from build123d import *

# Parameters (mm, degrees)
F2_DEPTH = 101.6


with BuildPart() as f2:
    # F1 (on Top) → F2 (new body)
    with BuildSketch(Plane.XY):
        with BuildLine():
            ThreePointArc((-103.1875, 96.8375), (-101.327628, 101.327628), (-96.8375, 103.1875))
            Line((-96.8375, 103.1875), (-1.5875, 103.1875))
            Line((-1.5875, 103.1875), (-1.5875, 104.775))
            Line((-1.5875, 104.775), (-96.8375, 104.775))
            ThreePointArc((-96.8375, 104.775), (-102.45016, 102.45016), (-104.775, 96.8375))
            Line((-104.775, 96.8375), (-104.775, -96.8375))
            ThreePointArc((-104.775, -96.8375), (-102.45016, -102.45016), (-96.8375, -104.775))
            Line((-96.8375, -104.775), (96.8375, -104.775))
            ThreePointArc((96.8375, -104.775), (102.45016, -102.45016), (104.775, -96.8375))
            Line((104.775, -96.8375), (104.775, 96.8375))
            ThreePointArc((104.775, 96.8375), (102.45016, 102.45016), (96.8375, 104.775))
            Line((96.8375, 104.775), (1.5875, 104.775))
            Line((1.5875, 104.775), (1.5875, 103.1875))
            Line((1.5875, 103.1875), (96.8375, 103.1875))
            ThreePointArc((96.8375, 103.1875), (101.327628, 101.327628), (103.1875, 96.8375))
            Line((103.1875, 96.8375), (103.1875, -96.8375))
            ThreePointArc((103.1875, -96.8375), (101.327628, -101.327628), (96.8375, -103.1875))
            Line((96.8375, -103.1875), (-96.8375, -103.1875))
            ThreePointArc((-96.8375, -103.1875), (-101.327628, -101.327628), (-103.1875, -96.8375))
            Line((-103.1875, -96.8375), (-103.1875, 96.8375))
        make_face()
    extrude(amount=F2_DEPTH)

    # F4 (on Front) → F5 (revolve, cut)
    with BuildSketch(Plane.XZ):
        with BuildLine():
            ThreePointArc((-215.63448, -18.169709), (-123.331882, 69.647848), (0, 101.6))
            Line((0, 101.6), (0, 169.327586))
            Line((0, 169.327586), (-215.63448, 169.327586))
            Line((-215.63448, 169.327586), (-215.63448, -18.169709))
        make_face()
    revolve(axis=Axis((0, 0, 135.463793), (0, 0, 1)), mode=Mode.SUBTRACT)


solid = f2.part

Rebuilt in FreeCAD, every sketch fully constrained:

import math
import FreeCAD as App
import Part
import Sketcher
from FreeCAD import Vector
Q = App.Units.Quantity

doc = App.newDocument("Part")
body = doc.addObject("PartDesign::Body", "Body")

# Sketch on XY plane
sketch1 = doc.addObject("Sketcher::SketchObject", "Sketch")
body.addObject(sketch1)
sketch1.AttachmentSupport = (doc.XY_Plane, [""])
sketch1.MapMode = "FlatFace"
sketch1.addGeometry(Part.ArcOfCircle(Part.Circle(Vector(-96.8, 96.8, 0), Vector(0, 0, 1), 6.4), math.radians(90), math.radians(180)), False)
sketch1.addGeometry(Part.LineSegment(Vector(-96.8, 103.2, 0), Vector(-1.6, 103.2, 0)), False)
sketch1.addGeometry(Part.LineSegment(Vector(-1.6, 103.2, 0), Vector(-1.6, 104.8, 0)), False)
sketch1.addGeometry(Part.LineSegment(Vector(-1.6, 104.8, 0), Vector(-96.8, 104.8, 0)), False)
sketch1.addGeometry(Part.ArcOfCircle(Part.Circle(Vector(-96.8, 96.8, 0), Vector(0, 0, 1), 7.9), math.radians(90), math.radians(180)), False)
sketch1.addGeometry(Part.LineSegment(Vector(-104.8, 96.8, 0), Vector(-104.8, -96.8, 0)), False)
sketch1.addGeometry(Part.ArcOfCircle(Part.Circle(Vector(-96.8, -96.8, 0), Vector(0, 0, 1), 7.9), math.radians(-180), math.radians(-90)), False)
sketch1.addGeometry(Part.LineSegment(Vector(-96.8, -104.8, 0), Vector(96.8, -104.8, 0)), False)
sketch1.addGeometry(Part.ArcOfCircle(Part.Circle(Vector(96.8, -96.8, 0), Vector(0, 0, 1), 7.9), math.radians(-90), math.radians(0)), False)
sketch1.addGeometry(Part.LineSegment(Vector(104.8, -96.8, 0), Vector(104.8, 96.8, 0)), False)
sketch1.addGeometry(Part.ArcOfCircle(Part.Circle(Vector(96.8, 96.8, 0), Vector(0, 0, 1), 7.9), math.radians(0), math.radians(90)), False)
sketch1.addGeometry(Part.LineSegment(Vector(96.8, 104.8, 0), Vector(1.6, 104.8, 0)), False)
sketch1.addGeometry(Part.LineSegment(Vector(1.6, 104.8, 0), Vector(1.6, 103.2, 0)), False)
sketch1.addGeometry(Part.LineSegment(Vector(1.6, 103.2, 0), Vector(96.8, 103.2, 0)), False)
sketch1.addGeometry(Part.ArcOfCircle(Part.Circle(Vector(96.8, 96.8, 0), Vector(0, 0, 1), 6.4), math.radians(0), math.radians(90)), False)
sketch1.addGeometry(Part.LineSegment(Vector(103.2, 96.8, 0), Vector(103.2, -96.8, 0)), False)
sketch1.addGeometry(Part.ArcOfCircle(Part.Circle(Vector(96.8, -96.8, 0), Vector(0, 0, 1), 6.4), math.radians(-90), math.radians(0)), False)
sketch1.addGeometry(Part.LineSegment(Vector(96.8, -103.2, 0), Vector(-96.8, -103.2, 0)), False)
sketch1.addGeometry(Part.ArcOfCircle(Part.Circle(Vector(-96.8, -96.8, 0), Vector(0, 0, 1), 6.4), math.radians(-180), math.radians(-90)), False)
sketch1.addGeometry(Part.LineSegment(Vector(-103.2, -96.8, 0), Vector(-103.2, 96.8, 0)), False)
sketch1.addConstraint(Sketcher.Constraint("Tangent", 0, 1, 1, 1))
sketch1.addConstraint(Sketcher.Constraint("Coincident", 1, 2, 2, 1))
sketch1.addConstraint(Sketcher.Constraint("Coincident", 2, 2, 3, 1))
sketch1.addConstraint(Sketcher.Constraint("Tangent", 3, 2, 4, 1))
sketch1.addConstraint(Sketcher.Constraint("Tangent", 4, 2, 5, 1))
sketch1.addConstraint(Sketcher.Constraint("Tangent", 5, 2, 6, 1))
sketch1.addConstraint(Sketcher.Constraint("Tangent", 6, 2, 7, 1))
sketch1.addConstraint(Sketcher.Constraint("Tangent", 7, 2, 8, 1))
sketch1.addConstraint(Sketcher.Constraint("Tangent", 8, 2, 9, 1))
sketch1.addConstraint(Sketcher.Constraint("Tangent", 9, 2, 10, 1))
sketch1.addConstraint(Sketcher.Constraint("Tangent", 10, 2, 11, 1))
sketch1.addConstraint(Sketcher.Constraint("Coincident", 11, 2, 12, 1))
sketch1.addConstraint(Sketcher.Constraint("Coincident", 12, 2, 13, 1))
sketch1.addConstraint(Sketcher.Constraint("Tangent", 13, 2, 14, 2))
sketch1.addConstraint(Sketcher.Constraint("Tangent", 14, 1, 15, 1))
sketch1.addConstraint(Sketcher.Constraint("Tangent", 15, 2, 16, 2))
sketch1.addConstraint(Sketcher.Constraint("Tangent", 16, 1, 17, 1))
sketch1.addConstraint(Sketcher.Constraint("Tangent", 17, 2, 18, 2))
sketch1.addConstraint(Sketcher.Constraint("Tangent", 18, 1, 19, 1))
sketch1.addConstraint(Sketcher.Constraint("Tangent", 19, 2, 0, 2))
sketch1.addConstraint(Sketcher.Constraint("Horizontal", 1))
sketch1.addConstraint(Sketcher.Constraint("Vertical", 2))
sketch1.addConstraint(Sketcher.Constraint("Horizontal", 3))
sketch1.addConstraint(Sketcher.Constraint("Vertical", 5))
sketch1.addConstraint(Sketcher.Constraint("Horizontal", 7))
sketch1.addConstraint(Sketcher.Constraint("Vertical", 9))
sketch1.addConstraint(Sketcher.Constraint("Horizontal", 11))
sketch1.addConstraint(Sketcher.Constraint("Vertical", 12))
sketch1.addConstraint(Sketcher.Constraint("Horizontal", 13))
sketch1.addConstraint(Sketcher.Constraint("Vertical", 15))
sketch1.addConstraint(Sketcher.Constraint("Horizontal", 17))
sketch1.addConstraint(Sketcher.Constraint("Vertical", 19))
sketch1.addConstraint(Sketcher.Constraint("Coincident", 4, 3, 0, 3))
sketch1.addConstraint(Sketcher.Constraint("Coincident", 14, 3, 10, 3))
sketch1.addConstraint(Sketcher.Constraint("Coincident", 16, 3, 8, 3))
sketch1.addConstraint(Sketcher.Constraint("Coincident", 18, 3, 6, 3))
sketch1.addConstraint(Sketcher.Constraint("Equal", 4, 6))
sketch1.addConstraint(Sketcher.Constraint("Equal", 6, 8))
sketch1.addConstraint(Sketcher.Constraint("Equal", 8, 10))
sketch1.addConstraint(Sketcher.Constraint("Symmetric", 0, 3, 8, 3, -1, 1))
sketch1.addConstraint(Sketcher.Constraint("Symmetric", 2, 2, 11, 2, -2))
sketch1.addConstraint(Sketcher.Constraint("Equal", 17, 5))
sketch1.addConstraint(Sketcher.Constraint("Radius", 0, Q("0.25 in")))
sketch1.addConstraint(Sketcher.Constraint("Radius", 4, Q("0.3125 in")))
sketch1.addConstraint(Sketcher.Constraint("DistanceX", 1, 1, 1, 2, Q("3.75 in")))
sketch1.addConstraint(Sketcher.Constraint("DistanceX", 7, 1, 7, 2, Q("7.625 in")))
pad1 = doc.addObject("PartDesign::Pad", "Pad")
body.addObject(pad1)
pad1.Profile = sketch1
pad1.Length = Q("4 in")

# Sketch on XZ plane
sketch2 = doc.addObject("Sketcher::SketchObject", "Sketch001")
body.addObject(sketch2)
sketch2.AttachmentSupport = (doc.XZ_Plane, [""])
sketch2.MapMode = "FlatFace"
sketch2.addGeometry(Part.ArcOfCircle(Part.Circle(Vector(0, -152, 0), Vector(0, 0, 1), 254), math.radians(90), math.radians(148)), False)
sketch2.addGeometry(Part.LineSegment(Vector(0, 102, 0), Vector(0, 169, 0)), False)
sketch2.addGeometry(Part.LineSegment(Vector(0, 169, 0), Vector(-216, 169, 0)), False)
sketch2.addGeometry(Part.LineSegment(Vector(-216, 169, 0), Vector(-216, -18, 0)), False)
sketch2.addConstraint(Sketcher.Constraint("Coincident", 0, 1, 1, 1))
sketch2.addConstraint(Sketcher.Constraint("Coincident", 1, 2, 2, 1))
sketch2.addConstraint(Sketcher.Constraint("Coincident", 2, 2, 3, 1))
sketch2.addConstraint(Sketcher.Constraint("Coincident", 3, 2, 0, 2))
sketch2.addConstraint(Sketcher.Constraint("Vertical", 1))
sketch2.addConstraint(Sketcher.Constraint("Horizontal", 2))
sketch2.addConstraint(Sketcher.Constraint("Vertical", 3))
sketch2.addConstraint(Sketcher.Constraint("PointOnObject", 0, 3, -2))
sketch2.addConstraint(Sketcher.Constraint("PointOnObject", 0, 1, -2))
sketch2.addConstraint(Sketcher.Constraint("Radius", 0, Q("10 in")))
sketch2.addConstraint(Sketcher.Constraint("DistanceY", 0, 3, -1, 1, Q("6 in")))
sketch2.addConstraint(Sketcher.Constraint("DistanceX", 2, 2, 2, 1, 215.63448))
sketch2.addConstraint(Sketcher.Constraint("DistanceY", 1, 1, 1, 2, 67.727586))
groove = doc.addObject("PartDesign::Groove", "Groove")
body.addObject(groove)
groove.Profile = sketch2
groove.ReferenceAxis = (sketch2, ["V_Axis"])
groove.Angle = 360

doc.recompute()
